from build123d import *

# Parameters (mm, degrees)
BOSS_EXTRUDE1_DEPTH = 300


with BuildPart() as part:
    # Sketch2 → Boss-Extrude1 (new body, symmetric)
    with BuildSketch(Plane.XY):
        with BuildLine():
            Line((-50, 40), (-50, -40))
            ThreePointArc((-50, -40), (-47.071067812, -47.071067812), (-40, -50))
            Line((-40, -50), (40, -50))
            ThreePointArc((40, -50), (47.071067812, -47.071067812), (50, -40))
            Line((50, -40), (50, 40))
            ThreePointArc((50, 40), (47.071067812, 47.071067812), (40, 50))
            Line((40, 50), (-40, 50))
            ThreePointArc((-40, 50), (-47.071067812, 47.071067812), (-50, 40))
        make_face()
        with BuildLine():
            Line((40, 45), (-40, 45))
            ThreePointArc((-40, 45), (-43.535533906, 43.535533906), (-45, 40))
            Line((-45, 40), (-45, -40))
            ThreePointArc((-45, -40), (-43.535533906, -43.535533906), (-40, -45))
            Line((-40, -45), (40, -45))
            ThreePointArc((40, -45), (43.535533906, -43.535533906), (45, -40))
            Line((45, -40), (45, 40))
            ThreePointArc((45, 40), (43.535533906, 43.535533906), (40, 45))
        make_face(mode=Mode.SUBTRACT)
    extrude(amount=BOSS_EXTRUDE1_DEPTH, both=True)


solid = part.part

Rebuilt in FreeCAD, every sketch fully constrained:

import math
import FreeCAD as App
import Part
import Sketcher
from FreeCAD import Vector
Q = App.Units.Quantity

doc = App.newDocument("Part")
body = doc.addObject("PartDesign::Body", "Body")

# Sketch on XY plane
sketch1 = body.newObject("Sketcher::SketchObject", "Sketch")
sketch1.AttachmentSupport = (doc.getObject("XY_Plane"), [""])
sketch1.MapMode = "FlatFace"
sketch1.addGeometry([
    Part.LineSegment(Vector(-50, 40, 0), Vector(-50, -40, 0)),  # 0
    Part.ArcOfCircle(Part.Circle(Vector(-40, -40, 0), Vector(0, 0, 1), 10), math.radians(180), math.radians(270)),  # 1
    Part.LineSegment(Vector(-40, -50, 0), Vector(40, -50, 0)),  # 2
    Part.ArcOfCircle(Part.Circle(Vector(40, -40, 0), Vector(0, 0, 1), 10), math.radians(-90), math.radians(0)),  # 3
    Part.LineSegment(Vector(50, -40, 0), Vector(50, 40, 0)),  # 4
    Part.ArcOfCircle(Part.Circle(Vector(40, 40, 0), Vector(0, 0, 1), 10), math.radians(0), math.radians(90)),  # 5
    Part.LineSegment(Vector(40, 50, 0), Vector(-40, 50, 0)),  # 6
    Part.ArcOfCircle(Part.Circle(Vector(-40, 40, 0), Vector(0, 0, 1), 10), math.radians(90), math.radians(180)),  # 7
    Part.LineSegment(Vector(-40, 45, 0), Vector(40, 45, 0)),  # 8
    Part.ArcOfCircle(Part.Circle(Vector(40, 40, 0), Vector(0, 0, 1), 5), math.radians(0), math.radians(90)),  # 9
    Part.LineSegment(Vector(45, 40, 0), Vector(45, -40, 0)),  # 10
    Part.ArcOfCircle(Part.Circle(Vector(40, -40, 0), Vector(0, 0, 1), 5), math.radians(-90), math.radians(0)),  # 11
    Part.LineSegment(Vector(40, -45, 0), Vector(-40, -45, 0)),  # 12
    Part.ArcOfCircle(Part.Circle(Vector(-40, -40, 0), Vector(0, 0, 1), 5), math.radians(180), math.radians(270)),  # 13
    Part.LineSegment(Vector(-45, -40, 0), Vector(-45, 40, 0)),  # 14
    Part.ArcOfCircle(Part.Circle(Vector(-40, 40, 0), Vector(0, 0, 1), 5), math.radians(90), math.radians(180)),  # 15
], False)
sketch1.addConstraint([
    Sketcher.Constraint("Tangent", 0, 2, 1, 1),
    Sketcher.Constraint("Tangent", 1, 2, 2, 1),
    Sketcher.Constraint("Tangent", 2, 2, 3, 1),
    Sketcher.Constraint("Tangent", 3, 2, 4, 1),
    Sketcher.Constraint("Tangent", 4, 2, 5, 1),
    Sketcher.Constraint("Tangent", 5, 2, 6, 1),
    Sketcher.Constraint("Tangent", 6, 2, 7, 1),
    Sketcher.Constraint("Tangent", 7, 2, 0, 1),
    Sketcher.Constraint("Tangent", 8, 2, 9, 2),
    Sketcher.Constraint("Tangent", 9, 1, 10, 1),
    Sketcher.Constraint("Tangent", 10, 2, 11, 2),
    Sketcher.Constraint("Tangent", 11, 1, 12, 1),
    Sketcher.Constraint("Tangent", 12, 2, 13, 2),
    Sketcher.Constraint("Tangent", 13, 1, 14, 1),
    Sketcher.Constraint("Tangent", 14, 2, 15, 2),
    Sketcher.Constraint("Tangent", 15, 1, 8, 1),
    Sketcher.Constraint("Vertical", 0),
    Sketcher.Constraint("Horizontal", 2),
    Sketcher.Constraint("Vertical", 4),
    Sketcher.Constraint("Horizontal", 6),
    Sketcher.Constraint("Horizontal", 8),
    Sketcher.Constraint("Vertical", 10),
    Sketcher.Constraint("Horizontal", 12),
    Sketcher.Constraint("Vertical", 14),
    Sketcher.Constraint("Coincident", 9, 3, 5, 3),
    Sketcher.Constraint("Coincident", 11, 3, 3, 3),
    Sketcher.Constraint("Coincident", 13, 3, 1, 3),
    Sketcher.Constraint("Equal", 1, 3),
    Sketcher.Constraint("Equal", 3, 5),
    Sketcher.Constraint("Equal", 5, 7),
    Sketcher.Constraint("Equal", 13, 15),
    Sketcher.Constraint("Symmetric", 1, 3, 5, 3, -1, 1),
    Sketcher.Constraint("Equal", 12, 0),
    Sketcher.Constraint("Radius", 1, Q("10 mm")),
    Sketcher.Constraint("Radius", 9, Q("5 mm")),
    Sketcher.Constraint("DistanceX", 2, 1, 2, 2, Q("80 mm")),
])
pad1 = body.newObject("PartDesign::Pad", "Pad")
pad1.Profile = sketch1
pad1.Length = 600
pad1.Midplane = True

doc.recompute()
